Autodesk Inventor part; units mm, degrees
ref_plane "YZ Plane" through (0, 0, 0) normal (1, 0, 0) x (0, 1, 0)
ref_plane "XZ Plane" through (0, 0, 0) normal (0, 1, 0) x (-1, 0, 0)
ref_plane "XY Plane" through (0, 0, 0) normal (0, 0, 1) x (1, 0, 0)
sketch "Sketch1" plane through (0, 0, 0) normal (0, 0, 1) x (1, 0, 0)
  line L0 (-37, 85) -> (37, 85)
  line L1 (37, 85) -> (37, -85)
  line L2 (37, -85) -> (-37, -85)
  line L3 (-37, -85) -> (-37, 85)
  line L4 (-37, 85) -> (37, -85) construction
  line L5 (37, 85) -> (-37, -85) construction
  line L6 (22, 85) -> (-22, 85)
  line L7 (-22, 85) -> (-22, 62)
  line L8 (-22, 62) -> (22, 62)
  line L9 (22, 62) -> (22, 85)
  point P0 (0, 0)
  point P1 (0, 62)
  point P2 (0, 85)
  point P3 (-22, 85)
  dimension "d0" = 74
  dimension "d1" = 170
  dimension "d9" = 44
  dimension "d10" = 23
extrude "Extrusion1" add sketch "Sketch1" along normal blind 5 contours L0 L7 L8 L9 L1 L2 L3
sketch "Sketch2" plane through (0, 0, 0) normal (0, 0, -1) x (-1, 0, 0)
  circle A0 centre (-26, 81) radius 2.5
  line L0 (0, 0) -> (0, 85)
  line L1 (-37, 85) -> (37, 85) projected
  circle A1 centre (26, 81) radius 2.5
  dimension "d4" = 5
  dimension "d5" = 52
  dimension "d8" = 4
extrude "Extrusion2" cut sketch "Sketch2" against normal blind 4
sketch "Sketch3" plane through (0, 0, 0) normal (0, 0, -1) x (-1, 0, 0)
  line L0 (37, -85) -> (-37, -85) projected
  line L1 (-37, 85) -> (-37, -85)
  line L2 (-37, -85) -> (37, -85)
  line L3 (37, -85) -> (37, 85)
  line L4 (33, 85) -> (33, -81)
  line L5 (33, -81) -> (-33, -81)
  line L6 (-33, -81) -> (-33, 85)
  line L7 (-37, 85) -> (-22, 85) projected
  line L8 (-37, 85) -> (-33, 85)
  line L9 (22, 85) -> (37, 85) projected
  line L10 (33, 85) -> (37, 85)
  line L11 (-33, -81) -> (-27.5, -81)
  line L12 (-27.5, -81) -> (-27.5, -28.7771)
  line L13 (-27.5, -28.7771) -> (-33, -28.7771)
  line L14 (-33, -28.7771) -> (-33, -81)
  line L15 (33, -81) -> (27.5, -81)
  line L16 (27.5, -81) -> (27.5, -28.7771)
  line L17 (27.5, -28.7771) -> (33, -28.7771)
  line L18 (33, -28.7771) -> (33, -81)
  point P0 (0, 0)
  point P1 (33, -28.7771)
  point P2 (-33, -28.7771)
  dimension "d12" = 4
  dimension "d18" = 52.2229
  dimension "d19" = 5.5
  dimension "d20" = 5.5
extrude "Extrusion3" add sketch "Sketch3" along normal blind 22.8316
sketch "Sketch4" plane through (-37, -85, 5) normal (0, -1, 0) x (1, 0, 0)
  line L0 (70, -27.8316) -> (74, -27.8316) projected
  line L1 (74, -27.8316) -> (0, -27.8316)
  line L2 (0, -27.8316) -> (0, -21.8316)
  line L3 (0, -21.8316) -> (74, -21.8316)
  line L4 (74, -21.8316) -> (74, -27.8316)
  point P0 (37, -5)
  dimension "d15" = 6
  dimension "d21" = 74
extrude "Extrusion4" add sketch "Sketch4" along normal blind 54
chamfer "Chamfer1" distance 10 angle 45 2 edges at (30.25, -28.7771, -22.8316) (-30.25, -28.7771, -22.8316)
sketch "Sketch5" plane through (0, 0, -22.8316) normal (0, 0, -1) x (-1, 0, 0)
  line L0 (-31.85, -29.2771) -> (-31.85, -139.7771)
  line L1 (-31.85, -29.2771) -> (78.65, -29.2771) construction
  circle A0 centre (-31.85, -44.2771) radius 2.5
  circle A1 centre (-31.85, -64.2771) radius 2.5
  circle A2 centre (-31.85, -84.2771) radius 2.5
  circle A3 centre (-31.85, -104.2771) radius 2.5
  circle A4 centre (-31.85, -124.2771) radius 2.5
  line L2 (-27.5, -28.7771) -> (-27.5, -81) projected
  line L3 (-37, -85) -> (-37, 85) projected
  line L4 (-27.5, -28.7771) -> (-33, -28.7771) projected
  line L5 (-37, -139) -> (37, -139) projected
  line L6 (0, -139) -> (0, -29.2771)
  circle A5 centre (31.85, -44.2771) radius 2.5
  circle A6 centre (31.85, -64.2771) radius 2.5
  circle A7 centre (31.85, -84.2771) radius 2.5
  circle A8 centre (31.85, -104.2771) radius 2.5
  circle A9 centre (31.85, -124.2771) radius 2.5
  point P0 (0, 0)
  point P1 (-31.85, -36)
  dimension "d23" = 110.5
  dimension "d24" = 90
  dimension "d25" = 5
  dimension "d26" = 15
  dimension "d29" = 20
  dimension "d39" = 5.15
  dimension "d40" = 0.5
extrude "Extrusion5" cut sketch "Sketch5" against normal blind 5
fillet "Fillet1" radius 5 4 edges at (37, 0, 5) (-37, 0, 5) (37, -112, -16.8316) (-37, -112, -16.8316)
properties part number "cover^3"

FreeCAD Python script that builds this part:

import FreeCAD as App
import Part
import Sketcher
Q = App.Units.Quantity


def edges_at(feature, points):
    """Names of the edges that pass closest to the given points."""
    edges = feature.Shape.Edges
    near = lambda p: min(range(len(edges)), key=lambda i: edges[i].distToShape(Part.Vertex(*p))[0])
    return sorted({f"Edge{near(p) + 1}" for p in points})

doc = App.newDocument("Part")
body = doc.addObject("PartDesign::Body", "Body")

sketch1 = body.newObject("Sketcher::SketchObject", "Sketch")
sketch1.AttachmentSupport = (doc.getObject("XY_Plane"), [""])
sketch1.MapMode = "FlatFace"
sketch1.addGeometry(Part.LineSegment(App.Vector(-22, 85, 0), App.Vector(-37, 85, 0)), False)
sketch1.addGeometry(Part.LineSegment(App.Vector(-37, 85, 0), App.Vector(-37, -85, 0)), False)
sketch1.addGeometry(Part.LineSegment(App.Vector(-37, -85, 0), App.Vector(37, -85, 0)), False)
sketch1.addGeometry(Part.LineSegment(App.Vector(37, -85, 0), App.Vector(37, 85, 0)), False)
sketch1.addGeometry(Part.LineSegment(App.Vector(37, 85, 0), App.Vector(22, 85, 0)), False)
sketch1.addGeometry(Part.LineSegment(App.Vector(22, 85, 0), App.Vector(22, 62, 0)), False)
sketch1.addGeometry(Part.LineSegment(App.Vector(22, 62, 0), App.Vector(-22, 62, 0)), False)
sketch1.addGeometry(Part.LineSegment(App.Vector(-22, 62, 0), App.Vector(-22, 85, 0)), False)
sketch1.addConstraint(Sketcher.Constraint("Coincident", 0, 2, 1, 1))
sketch1.addConstraint(Sketcher.Constraint("Coincident", 1, 2, 2, 1))
sketch1.addConstraint(Sketcher.Constraint("Coincident", 2, 2, 3, 1))
sketch1.addConstraint(Sketcher.Constraint("Coincident", 3, 2, 4, 1))
sketch1.addConstraint(Sketcher.Constraint("Coincident", 4, 2, 5, 1))
sketch1.addConstraint(Sketcher.Constraint("Coincident", 5, 2, 6, 1))
sketch1.addConstraint(Sketcher.Constraint("Coincident", 6, 2, 7, 1))
sketch1.addConstraint(Sketcher.Constraint("Coincident", 7, 2, 0, 1))
sketch1.addConstraint(Sketcher.Constraint("Horizontal", 0))
sketch1.addConstraint(Sketcher.Constraint("Vertical", 1))
sketch1.addConstraint(Sketcher.Constraint("Horizontal", 2))
sketch1.addConstraint(Sketcher.Constraint("Vertical", 3))
sketch1.addConstraint(Sketcher.Constraint("Horizontal", 4))
sketch1.addConstraint(Sketcher.Constraint("Vertical", 5))
sketch1.addConstraint(Sketcher.Constraint("Horizontal", 6))
sketch1.addConstraint(Sketcher.Constraint("Vertical", 7))
sketch1.addConstraint(Sketcher.Constraint("Symmetric", 0, 2, 2, 2, -1, 1))
sketch1.addConstraint(Sketcher.Constraint("Symmetric", 4, 2, 7, 2, -2))
sketch1.addConstraint(Sketcher.Constraint("DistanceX", 2, 1, 2, 2, Q("74 mm")))
sketch1.addConstraint(Sketcher.Constraint("DistanceX", 6, 2, 6, 1, Q("44 mm")))
sketch1.addConstraint(Sketcher.Constraint("DistanceY", 1, 2, 1, 1, Q("170 mm")))
sketch1.addConstraint(Sketcher.Constraint("DistanceY", 5, 2, 5, 1, Q("23 mm")))
pad1 = body.newObject("PartDesign::Pad", "Pad")
pad1.Profile = sketch1
pad1.Length = 5

sketch2 = body.newObject("Sketcher::SketchObject", "Sketch001")
sketch2.AttachmentSupport = (doc.getObject("XY_Plane"), [""])
sketch2.MapMode = "FlatFace"
sketch2.addGeometry(Part.Circle(App.Vector(26, 81, 0), App.Vector(0, 0, 1), 2.5), False)
sketch2.addGeometry(Part.Circle(App.Vector(-26, 81, 0), App.Vector(0, 0, 1), 2.5), False)
sketch2.addConstraint(Sketcher.Constraint("Equal", 0, 1))
sketch2.addConstraint(Sketcher.Constraint("Symmetric", 0, 3, 1, 3, -2))
sketch2.addConstraint(Sketcher.Constraint("Diameter", 0, Q("5 mm")))
sketch2.addConstraint(Sketcher.Constraint("DistanceX", 1, 3, 0, 3, Q("52 mm")))
sketch2.addConstraint(Sketcher.Constraint("DistanceY", -1, 1, 0, 3, Q("81 mm")))
pocket1 = body.newObject("PartDesign::Pocket", "Pocket")
pocket1.Profile = sketch2
pocket1.Length = 4
pocket1.Reversed = True

sketch3 = body.newObject("Sketcher::SketchObject", "Sketch002")
sketch3.AttachmentSupport = (doc.getObject("XY_Plane"), [""])
sketch3.MapMode = "FlatFace"
sketch3.addGeometry(Part.LineSegment(App.Vector(37, -85, 0), App.Vector(-37, -85, 0)), False)
sketch3.addGeometry(Part.LineSegment(App.Vector(-37, -85, 0), App.Vector(-37, 85, 0)), False)
sketch3.addGeometry(Part.LineSegment(App.Vector(-37, 85, 0), App.Vector(-33, 85, 0)), False)
sketch3.addGeometry(Part.LineSegment(App.Vector(-33, 85, 0), App.Vector(-33, -28.8, 0)), False)
sketch3.addGeometry(Part.LineSegment(App.Vector(-33, -28.8, 0), App.Vector(-27.5, -28.8, 0)), False)
sketch3.addGeometry(Part.LineSegment(App.Vector(-27.5, -28.8, 0), App.Vector(-27.5, -81, 0)), False)
sketch3.addGeometry(Part.LineSegment(App.Vector(-27.5, -81, 0), App.Vector(27.5, -81, 0)), False)
sketch3.addGeometry(Part.LineSegment(App.Vector(27.5, -81, 0), App.Vector(27.5, -28.8, 0)), False)
sketch3.addGeometry(Part.LineSegment(App.Vector(27.5, -28.8, 0), App.Vector(33, -28.8, 0)), False)
sketch3.addGeometry(Part.LineSegment(App.Vector(33, -28.8, 0), App.Vector(33, 85, 0)), False)
sketch3.addGeometry(Part.LineSegment(App.Vector(33, 85, 0), App.Vector(37, 85, 0)), False)
sketch3.addGeometry(Part.LineSegment(App.Vector(37, 85, 0), App.Vector(37, -85, 0)), False)
sketch3.addConstraint(Sketcher.Constraint("Coincident", 0, 2, 1, 1))
sketch3.addConstraint(Sketcher.Constraint("Coincident", 1, 2, 2, 1))
sketch3.addConstraint(Sketcher.Constraint("Coincident", 2, 2, 3, 1))
sketch3.addConstraint(Sketcher.Constraint("Coincident", 3, 2, 4, 1))
sketch3.addConstraint(Sketcher.Constraint("Coincident", 4, 2, 5, 1))
sketch3.addConstraint(Sketcher.Constraint("Coincident", 5, 2, 6, 1))
sketch3.addConstraint(Sketcher.Constraint("Coincident", 6, 2, 7, 1))
sketch3.addConstraint(Sketcher.Constraint("Coincident", 7, 2, 8, 1))
sketch3.addConstraint(Sketcher.Constraint("Coincident", 8, 2, 9, 1))
sketch3.addConstraint(Sketcher.Constraint("Coincident", 9, 2, 10, 1))
sketch3.addConstraint(Sketcher.Constraint("Coincident", 10, 2, 11, 1))
sketch3.addConstraint(Sketcher.Constraint("Coincident", 11, 2, 0, 1))
sketch3.addConstraint(Sketcher.Constraint("Horizontal", 0))
sketch3.addConstraint(Sketcher.Constraint("Vertical", 1))
sketch3.addConstraint(Sketcher.Constraint("Horizontal", 2))
sketch3.addConstraint(Sketcher.Constraint("Vertical", 3))
sketch3.addConstraint(Sketcher.Constraint("Horizontal", 4))
sketch3.addConstraint(Sketcher.Constraint("Vertical", 5))
sketch3.addConstraint(Sketcher.Constraint("Horizontal", 6))
sketch3.addConstraint(Sketcher.Constraint("Vertical", 7))
sketch3.addConstraint(Sketcher.Constraint("Horizontal", 8))
sketch3.addConstraint(Sketcher.Constraint("Vertical", 9))
sketch3.addConstraint(Sketcher.Constraint("Horizontal", 10))
sketch3.addConstraint(Sketcher.Constraint("Vertical", 11))
sketch3.addConstraint(Sketcher.Constraint("Symmetric", 0, 2, 10, 2, -1, 1))
sketch3.addConstraint(Sketcher.Constraint("Symmetric", 4, 2, 7, 2, -2))
sketch3.addConstraint(Sketcher.Constraint("Symmetric", 2, 2, 9, 2, -2))
sketch3.addConstraint(Sketcher.Constraint("DistanceX", 2, 1, 2, 2, Q("4 mm")))
sketch3.addConstraint(Sketcher.Constraint("DistanceX", 4, 1, 4, 2, Q("5.5 mm")))
sketch3.addConstraint(Sketcher.Constraint("DistanceY", 0, 2, 5, 2, Q("4 mm")))
sketch3.addConstraint(Sketcher.Constraint("DistanceX", 0, 2, 0, 1, Q("74 mm")))
sketch3.addConstraint(Sketcher.Constraint("DistanceY", 1, 1, 1, 2, Q("170 mm")))
sketch3.addConstraint(Sketcher.Constraint("DistanceY", 5, 2, 5, 1, Q("52.223 mm")))
pad2 = body.newObject("PartDesign::Pad", "Pad001")
pad2.Profile = sketch3
pad2.Length = 22.8316
pad2.Reversed = True

sketch4 = body.newObject("Sketcher::SketchObject", "Sketch003")
sketch4.AttachmentSupport = (doc.getObject("XZ_Plane"), [""])
sketch4.MapMode = "FlatFace"
sketch4.AttachmentOffset = App.Placement(App.Vector(0, 0, 85), App.Rotation())
sketch4.addGeometry(Part.LineSegment(App.Vector(-37, -23, 0), App.Vector(37, -23, 0)), False)
sketch4.addGeometry(Part.LineSegment(App.Vector(37, -23, 0), App.Vector(37, -17, 0)), False)
sketch4.addGeometry(Part.LineSegment(App.Vector(37, -17, 0), App.Vector(-37, -17, 0)), False)
sketch4.addGeometry(Part.LineSegment(App.Vector(-37, -17, 0), App.Vector(-37, -23, 0)), False)
sketch4.addConstraint(Sketcher.Constraint("Coincident", 0, 2, 1, 1))
sketch4.addConstraint(Sketcher.Constraint("Coincident", 1, 2, 2, 1))
sketch4.addConstraint(Sketcher.Constraint("Coincident", 2, 2, 3, 1))
sketch4.addConstraint(Sketcher.Constraint("Coincident", 3, 2, 0, 1))
sketch4.addConstraint(Sketcher.Constraint("Horizontal", 0))
sketch4.addConstraint(Sketcher.Constraint("Vertical", 1))
sketch4.addConstraint(Sketcher.Constraint("Horizontal", 2))
sketch4.addConstraint(Sketcher.Constraint("Vertical", 3))
sketch4.addConstraint(Sketcher.Constraint("DistanceX", 0, 1, 0, 2, Q("74 mm")))
sketch4.addConstraint(Sketcher.Constraint("DistanceY", 1, 1, 1, 2, Q("6 mm")))
sketch4.addConstraint(Sketcher.Constraint("DistanceX", -1, 1, 0, 2, Q("37 mm")))
sketch4.addConstraint(Sketcher.Constraint("DistanceY", 0, 2, -1, 1, Q("22.8316 mm")))
pad3 = body.newObject("PartDesign::Pad", "Pad002")
pad3.Profile = sketch4
pad3.Length = 54
doc.recompute()

chamfer = body.newObject("PartDesign::Chamfer", "Chamfer")
chamfer.Base = (pad3, edges_at(pad3, [(30.25, -28.777, -22.832), (-30.25, -28.777, -22.832)]))
chamfer.Size = 10

sketch5 = body.newObject("Sketcher::SketchObject", "Sketch004")
sketch5.AttachmentSupport = (doc.getObject("XY_Plane"), [""])
sketch5.MapMode = "FlatFace"
sketch5.AttachmentOffset = App.Placement(App.Vector(0, 0, -22.8316), App.Rotation())
sketch5.addGeometry(Part.Circle(App.Vector(31.9, -44.3, 0), App.Vector(0, 0, 1), 2.5), False)
sketch5.addGeometry(Part.Circle(App.Vector(31.9, -124.3, 0), App.Vector(0, 0, 1), 2.5), False)
sketch5.addGeometry(Part.Circle(App.Vector(31.9, -104.3, 0), App.Vector(0, 0, 1), 2.5), False)
sketch5.addGeometry(Part.Circle(App.Vector(31.9, -84.3, 0), App.Vector(0, 0, 1), 2.5), False)
sketch5.addGeometry(Part.Circle(App.Vector(31.9, -64.3, 0), App.Vector(0, 0, 1), 2.5), False)
sketch5.addGeometry(Part.Circle(App.Vector(-31.9, -44.3, 0), App.Vector(0, 0, 1), 2.5), False)
sketch5.addGeometry(Part.Circle(App.Vector(-31.9, -64.3, 0), App.Vector(0, 0, 1), 2.5), False)
sketch5.addGeometry(Part.Circle(App.Vector(-31.9, -84.3, 0), App.Vector(0, 0, 1), 2.5), False)
sketch5.addGeometry(Part.Circle(App.Vector(-31.9, -104.3, 0), App.Vector(0, 0, 1), 2.5), False)
sketch5.addGeometry(Part.Circle(App.Vector(-31.9, -124.3, 0), App.Vector(0, 0, 1), 2.5), False)
sketch5.addConstraint(Sketcher.Constraint("Equal", 0, 1))
sketch5.addConstraint(Sketcher.Constraint("Equal", 1, 2))
sketch5.addConstraint(Sketcher.Constraint("Equal", 2, 3))
sketch5.addConstraint(Sketcher.Constraint("Equal", 3, 4))
sketch5.addConstraint(Sketcher.Constraint("Equal", 4, 5))
sketch5.addConstraint(Sketcher.Constraint("Equal", 5, 6))
sketch5.addConstraint(Sketcher.Constraint("Equal", 6, 7))
sketch5.addConstraint(Sketcher.Constraint("Equal", 7, 8))
sketch5.addConstraint(Sketcher.Constraint("Equal", 8, 9))
sketch5.addConstraint(Sketcher.Constraint("Symmetric", 0, 3, 5, 3, -2))
sketch5.addConstraint(Sketcher.Constraint("Symmetric", 4, 3, 6, 3, -2))
sketch5.addConstraint(Sketcher.Constraint("Symmetric", 3, 3, 7, 3, -2))
sketch5.addConstraint(Sketcher.Constraint("Symmetric", 2, 3, 8, 3, -2))
sketch5.addConstraint(Sketcher.Constraint("Symmetric", 1, 3, 9, 3, -2))
sketch5.addConstraint(Sketcher.Constraint("Vertical", 0, 3, 1, 3))
sketch5.addConstraint(Sketcher.Constraint("Vertical", 1, 3, 2, 3))
sketch5.addConstraint(Sketcher.Constraint("Vertical", 2, 3, 3, 3))
sketch5.addConstraint(Sketcher.Constraint("Vertical", 3, 3, 4, 3))
sketch5.addConstraint(Sketcher.Constraint("Diameter", 0, Q("5 mm")))
sketch5.addConstraint(Sketcher.Constraint("DistanceY", 1, 3, 2, 3, Q("20 mm")))
sketch5.addConstraint(Sketcher.Constraint("DistanceY", 2, 3, 3, 3, Q("20 mm")))
sketch5.addConstraint(Sketcher.Constraint("DistanceY", 3, 3, 4, 3, Q("20 mm")))
sketch5.addConstraint(Sketcher.Constraint("DistanceY", 4, 3, 0, 3, Q("20 mm")))
sketch5.addConstraint(Sketcher.Constraint("DistanceX", 5, 3, 0, 3, Q("63.7 mm")))
sketch5.addConstraint(Sketcher.Constraint("DistanceY", 0, 3, -1, 1, Q("44.277 mm")))
pocket2 = body.newObject("PartDesign::Pocket", "Pocket001")
pocket2.Profile = sketch5
pocket2.Length = 5
pocket2.Reversed = True
doc.recompute()

fillet = body.newObject("PartDesign::Fillet", "Fillet")
fillet.Base = (pocket2, edges_at(pocket2, [
    (37, 0, 5),
    (-37, 0, 5),
    (37, -112, -16.832),
    (-37, -112, -16.832),
]))
fillet.Radius = 5

doc.recompute()
